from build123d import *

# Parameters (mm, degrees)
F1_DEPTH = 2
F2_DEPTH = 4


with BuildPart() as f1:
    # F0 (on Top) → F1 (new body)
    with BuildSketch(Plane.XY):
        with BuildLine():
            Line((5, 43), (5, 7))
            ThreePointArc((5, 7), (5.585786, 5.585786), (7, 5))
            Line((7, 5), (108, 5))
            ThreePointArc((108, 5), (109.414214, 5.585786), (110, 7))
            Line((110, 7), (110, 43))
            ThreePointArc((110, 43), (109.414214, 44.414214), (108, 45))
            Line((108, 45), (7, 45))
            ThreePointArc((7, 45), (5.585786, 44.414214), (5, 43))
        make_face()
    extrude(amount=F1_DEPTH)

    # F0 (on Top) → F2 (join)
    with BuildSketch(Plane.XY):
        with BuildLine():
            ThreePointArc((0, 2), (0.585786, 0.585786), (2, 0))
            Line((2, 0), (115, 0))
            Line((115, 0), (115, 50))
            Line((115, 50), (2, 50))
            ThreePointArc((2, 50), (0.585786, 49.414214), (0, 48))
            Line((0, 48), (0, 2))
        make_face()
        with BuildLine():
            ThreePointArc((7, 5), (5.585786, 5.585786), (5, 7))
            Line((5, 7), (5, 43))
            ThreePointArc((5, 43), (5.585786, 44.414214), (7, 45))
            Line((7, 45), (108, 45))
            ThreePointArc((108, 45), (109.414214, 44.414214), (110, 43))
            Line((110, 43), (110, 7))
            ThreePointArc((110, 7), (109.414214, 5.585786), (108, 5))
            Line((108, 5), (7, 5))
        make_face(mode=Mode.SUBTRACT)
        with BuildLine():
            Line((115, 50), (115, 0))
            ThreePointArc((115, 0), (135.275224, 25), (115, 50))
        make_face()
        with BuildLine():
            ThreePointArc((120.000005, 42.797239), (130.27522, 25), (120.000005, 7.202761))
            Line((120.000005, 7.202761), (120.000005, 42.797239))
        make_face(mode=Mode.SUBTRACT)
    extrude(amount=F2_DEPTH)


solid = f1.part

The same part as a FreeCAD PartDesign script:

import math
import FreeCAD as App
import Part
import Sketcher
from FreeCAD import Vector

doc = App.newDocument("Part")
body = doc.addObject("PartDesign::Body", "Body")

sketch1 = body.newObject("Sketcher::SketchObject", "Sketch")
sketch1.AttachmentSupport = (doc.getObject("XY_Plane"), [""])
sketch1.MapMode = "FlatFace"
sketch1.addGeometry(Part.LineSegment(Vector(5, 43, 0), Vector(5, 7, 0)), False)
sketch1.addGeometry(Part.ArcOfCircle(Part.Circle(Vector(6.999999, 6.999999, 0), Vector(0, 0, 1), 1.999999), math.radians(179.999957), math.radians(270.000043)), False)
sketch1.addGeometry(Part.LineSegment(Vector(7, 5, 0), Vector(108, 5, 0)), False)
sketch1.addGeometry(Part.ArcOfCircle(Part.Circle(Vector(108.000001, 6.999999, 0), Vector(0, 0, 1), 1.999999), math.radians(-90.000043), math.radians(0.000043)), False)
sketch1.addGeometry(Part.LineSegment(Vector(110, 7, 0), Vector(110, 43, 0)), False)
sketch1.addGeometry(Part.ArcOfCircle(Part.Circle(Vector(108.000001, 43.000001, 0), Vector(0, 0, 1), 1.999999), math.radians(-0.000043), math.radians(90.000043)), False)
sketch1.addGeometry(Part.LineSegment(Vector(108, 45, 0), Vector(7, 45, 0)), False)
sketch1.addGeometry(Part.ArcOfCircle(Part.Circle(Vector(6.999999, 43.000001, 0), Vector(0, 0, 1), 1.999999), math.radians(89.999957), math.radians(180.000043)), False)
sketch1.addConstraint(Sketcher.Constraint("Tangent", 0, 2, 1, 1))
sketch1.addConstraint(Sketcher.Constraint("Tangent", 1, 2, 2, 1))
sketch1.addConstraint(Sketcher.Constraint("Tangent", 2, 2, 3, 1))
sketch1.addConstraint(Sketcher.Constraint("Tangent", 3, 2, 4, 1))
sketch1.addConstraint(Sketcher.Constraint("Tangent", 4, 2, 5, 1))
sketch1.addConstraint(Sketcher.Constraint("Tangent", 5, 2, 6, 1))
sketch1.addConstraint(Sketcher.Constraint("Tangent", 6, 2, 7, 1))
sketch1.addConstraint(Sketcher.Constraint("Tangent", 7, 2, 0, 1))
sketch1.addConstraint(Sketcher.Constraint("Vertical", 0))
sketch1.addConstraint(Sketcher.Constraint("Horizontal", 2))
sketch1.addConstraint(Sketcher.Constraint("Vertical", 4))
sketch1.addConstraint(Sketcher.Constraint("Horizontal", 6))
sketch1.addConstraint(Sketcher.Constraint("Equal", 1, 3))
sketch1.addConstraint(Sketcher.Constraint("Equal", 3, 5))
sketch1.addConstraint(Sketcher.Constraint("Equal", 5, 7))
sketch1.addConstraint(Sketcher.Constraint("Radius", 1, 1.999999))
sketch1.addConstraint(Sketcher.Constraint("DistanceX", 2, 1, 2, 2, 101.0))
sketch1.addConstraint(Sketcher.Constraint("DistanceY", 0, 2, 0, 1, 36.0))
sketch1.addConstraint(Sketcher.Constraint("DistanceX", -1, 1, 1, 3, 6.999999))
sketch1.addConstraint(Sketcher.Constraint("DistanceY", -1, 1, 1, 3, 6.999999))
pad1 = body.newObject("PartDesign::Pad", "Pad")
pad1.Profile = sketch1
pad1.Length = 2

sketch2 = body.newObject("Sketcher::SketchObject", "Sketch001")
sketch2.AttachmentSupport = (doc.getObject("XY_Plane"), [""])
sketch2.MapMode = "FlatFace"
sketch2.addGeometry(Part.ArcOfCircle(Part.Circle(Vector(1.999999, 1.999999, 0), Vector(0, 0, 1), 1.999999), math.radians(179.999957), math.radians(270.000043)), False)
sketch2.addGeometry(Part.LineSegment(Vector(2, 0, 0), Vector(115, 0, 0)), False)
sketch2.addGeometry(Part.ArcOfCircle(Part.Circle(Vector(109.724712, 25, 0), Vector(0, 0, 1), 25.550512), math.radians(-78.084724), math.radians(78.084724)), False)
sketch2.addGeometry(Part.LineSegment(Vector(115, 50, 0), Vector(2, 50, 0)), False)
sketch2.addGeometry(Part.ArcOfCircle(Part.Circle(Vector(1.999999, 48.000001, 0), Vector(0, 0, 1), 1.999999), math.radians(89.999957), math.radians(180.000043)), False)
sketch2.addGeometry(Part.LineSegment(Vector(0, 48, 0), Vector(0, 2, 0)), False)
sketch2.addGeometry(Part.LineSegment(Vector(120.000005, 7.202761, 0), Vector(120.000005, 42.797239, 0)), False)
sketch2.addGeometry(Part.ArcOfCircle(Part.Circle(Vector(109.724713, 25, 0), Vector(0, 0, 1), 20.550507), math.radians(-59.999876), math.radians(59.999876)), False)
sketch2.addGeometry(Part.LineSegment(Vector(108, 5, 0), Vector(7, 5, 0)), False)
sketch2.addGeometry(Part.ArcOfCircle(Part.Circle(Vector(6.999999, 6.999999, 0), Vector(0, 0, 1), 1.999999), math.radians(179.999957), math.radians(270.000043)), False)
sketch2.addGeometry(Part.LineSegment(Vector(5, 7, 0), Vector(5, 43, 0)), False)
sketch2.addGeometry(Part.ArcOfCircle(Part.Circle(Vector(6.999999, 43.000001, 0), Vector(0, 0, 1), 1.999999), math.radians(89.999957), math.radians(180.000043)), False)
sketch2.addGeometry(Part.LineSegment(Vector(7, 45, 0), Vector(108, 45, 0)), False)
sketch2.addGeometry(Part.ArcOfCircle(Part.Circle(Vector(108.000001, 43.000001, 0), Vector(0, 0, 1), 1.999999), math.radians(-0.000043), math.radians(90.000043)), False)
sketch2.addGeometry(Part.LineSegment(Vector(110, 43, 0), Vector(110, 7, 0)), False)
sketch2.addGeometry(Part.ArcOfCircle(Part.Circle(Vector(108.000001, 6.999999, 0), Vector(0, 0, 1), 1.999999), math.radians(-90.000043), math.radians(0.000043)), False)
sketch2.addConstraint(Sketcher.Constraint("Tangent", 0, 2, 1, 1))
sketch2.addConstraint(Sketcher.Constraint("Coincident", 1, 2, 2, 1))
sketch2.addConstraint(Sketcher.Constraint("Coincident", 2, 2, 3, 1))
sketch2.addConstraint(Sketcher.Constraint("Tangent", 3, 2, 4, 1))
sketch2.addConstraint(Sketcher.Constraint("Tangent", 4, 2, 5, 1))
sketch2.addConstraint(Sketcher.Constraint("Tangent", 5, 2, 0, 1))
sketch2.addConstraint(Sketcher.Constraint("Coincident", 6, 1, 7, 1))
sketch2.addConstraint(Sketcher.Constraint("Coincident", 7, 2, 6, 2))
sketch2.addConstraint(Sketcher.Constraint("Tangent", 8, 2, 9, 2))
sketch2.addConstraint(Sketcher.Constraint("Tangent", 9, 1, 10, 1))
sketch2.addConstraint(Sketcher.Constraint("Tangent", 10, 2, 11, 2))
sketch2.addConstraint(Sketcher.Constraint("Tangent", 11, 1, 12, 1))
sketch2.addConstraint(Sketcher.Constraint("Tangent", 12, 2, 13, 2))
sketch2.addConstraint(Sketcher.Constraint("Tangent", 13, 1, 14, 1))
sketch2.addConstraint(Sketcher.Constraint("Tangent", 14, 2, 15, 2))
sketch2.addConstraint(Sketcher.Constraint("Tangent", 15, 1, 8, 1))
sketch2.addConstraint(Sketcher.Constraint("Horizontal", 1))
sketch2.addConstraint(Sketcher.Constraint("Horizontal", 3))
sketch2.addConstraint(Sketcher.Constraint("Vertical", 5))
sketch2.addConstraint(Sketcher.Constraint("Vertical", 6))
sketch2.addConstraint(Sketcher.Constraint("Horizontal", 8))
sketch2.addConstraint(Sketcher.Constraint("Vertical", 10))
sketch2.addConstraint(Sketcher.Constraint("Horizontal", 12))
sketch2.addConstraint(Sketcher.Constraint("Vertical", 14))
sketch2.addConstraint(Sketcher.Constraint("Coincident", 7, 3, 2, 3))
sketch2.addConstraint(Sketcher.Constraint("Equal", 0, 4))
sketch2.addConstraint(Sketcher.Constraint("Equal", 4, 9))
sketch2.addConstraint(Sketcher.Constraint("Equal", 9, 11))
sketch2.addConstraint(Sketcher.Constraint("Equal", 11, 13))
sketch2.addConstraint(Sketcher.Constraint("Equal", 13, 15))
sketch2.addConstraint(Sketcher.Constraint("PointOnObject", 0, 2, -1))
sketch2.addConstraint(Sketcher.Constraint("PointOnObject", 4, 2, -2))
sketch2.addConstraint(Sketcher.Constraint("Vertical", 1, 2, 2, 2))
sketch2.addConstraint(Sketcher.Constraint("Radius", 0, 1.999999))
sketch2.addConstraint(Sketcher.Constraint("DistanceX", 1, 1, 1, 2, 113.0))
sketch2.addConstraint(Sketcher.Constraint("DistanceX", 8, 2, 8, 1, 101.0))
sketch2.addConstraint(Sketcher.Constraint("DistanceY", 5, 2, 5, 1, 46.0))
sketch2.addConstraint(Sketcher.Constraint("DistanceY", 10, 1, 10, 2, 36.0))
sketch2.addConstraint(Sketcher.Constraint("DistanceX", -1, 1, 9, 3, 6.999999))
sketch2.addConstraint(Sketcher.Constraint("DistanceY", -1, 1, 9, 3, 6.999999))
sketch2.addConstraint(Sketcher.Constraint("Radius", 2, 25.550512))
sketch2.addConstraint(Sketcher.Constraint("Radius", 7, 20.550507))
sketch2.addConstraint(Sketcher.Constraint("DistanceY", 6, 1, 6, 2, 35.594478))
pad2 = body.newObject("PartDesign::Pad", "Pad001")
pad2.Profile = sketch2
pad2.Length = 4

doc.recompute()
